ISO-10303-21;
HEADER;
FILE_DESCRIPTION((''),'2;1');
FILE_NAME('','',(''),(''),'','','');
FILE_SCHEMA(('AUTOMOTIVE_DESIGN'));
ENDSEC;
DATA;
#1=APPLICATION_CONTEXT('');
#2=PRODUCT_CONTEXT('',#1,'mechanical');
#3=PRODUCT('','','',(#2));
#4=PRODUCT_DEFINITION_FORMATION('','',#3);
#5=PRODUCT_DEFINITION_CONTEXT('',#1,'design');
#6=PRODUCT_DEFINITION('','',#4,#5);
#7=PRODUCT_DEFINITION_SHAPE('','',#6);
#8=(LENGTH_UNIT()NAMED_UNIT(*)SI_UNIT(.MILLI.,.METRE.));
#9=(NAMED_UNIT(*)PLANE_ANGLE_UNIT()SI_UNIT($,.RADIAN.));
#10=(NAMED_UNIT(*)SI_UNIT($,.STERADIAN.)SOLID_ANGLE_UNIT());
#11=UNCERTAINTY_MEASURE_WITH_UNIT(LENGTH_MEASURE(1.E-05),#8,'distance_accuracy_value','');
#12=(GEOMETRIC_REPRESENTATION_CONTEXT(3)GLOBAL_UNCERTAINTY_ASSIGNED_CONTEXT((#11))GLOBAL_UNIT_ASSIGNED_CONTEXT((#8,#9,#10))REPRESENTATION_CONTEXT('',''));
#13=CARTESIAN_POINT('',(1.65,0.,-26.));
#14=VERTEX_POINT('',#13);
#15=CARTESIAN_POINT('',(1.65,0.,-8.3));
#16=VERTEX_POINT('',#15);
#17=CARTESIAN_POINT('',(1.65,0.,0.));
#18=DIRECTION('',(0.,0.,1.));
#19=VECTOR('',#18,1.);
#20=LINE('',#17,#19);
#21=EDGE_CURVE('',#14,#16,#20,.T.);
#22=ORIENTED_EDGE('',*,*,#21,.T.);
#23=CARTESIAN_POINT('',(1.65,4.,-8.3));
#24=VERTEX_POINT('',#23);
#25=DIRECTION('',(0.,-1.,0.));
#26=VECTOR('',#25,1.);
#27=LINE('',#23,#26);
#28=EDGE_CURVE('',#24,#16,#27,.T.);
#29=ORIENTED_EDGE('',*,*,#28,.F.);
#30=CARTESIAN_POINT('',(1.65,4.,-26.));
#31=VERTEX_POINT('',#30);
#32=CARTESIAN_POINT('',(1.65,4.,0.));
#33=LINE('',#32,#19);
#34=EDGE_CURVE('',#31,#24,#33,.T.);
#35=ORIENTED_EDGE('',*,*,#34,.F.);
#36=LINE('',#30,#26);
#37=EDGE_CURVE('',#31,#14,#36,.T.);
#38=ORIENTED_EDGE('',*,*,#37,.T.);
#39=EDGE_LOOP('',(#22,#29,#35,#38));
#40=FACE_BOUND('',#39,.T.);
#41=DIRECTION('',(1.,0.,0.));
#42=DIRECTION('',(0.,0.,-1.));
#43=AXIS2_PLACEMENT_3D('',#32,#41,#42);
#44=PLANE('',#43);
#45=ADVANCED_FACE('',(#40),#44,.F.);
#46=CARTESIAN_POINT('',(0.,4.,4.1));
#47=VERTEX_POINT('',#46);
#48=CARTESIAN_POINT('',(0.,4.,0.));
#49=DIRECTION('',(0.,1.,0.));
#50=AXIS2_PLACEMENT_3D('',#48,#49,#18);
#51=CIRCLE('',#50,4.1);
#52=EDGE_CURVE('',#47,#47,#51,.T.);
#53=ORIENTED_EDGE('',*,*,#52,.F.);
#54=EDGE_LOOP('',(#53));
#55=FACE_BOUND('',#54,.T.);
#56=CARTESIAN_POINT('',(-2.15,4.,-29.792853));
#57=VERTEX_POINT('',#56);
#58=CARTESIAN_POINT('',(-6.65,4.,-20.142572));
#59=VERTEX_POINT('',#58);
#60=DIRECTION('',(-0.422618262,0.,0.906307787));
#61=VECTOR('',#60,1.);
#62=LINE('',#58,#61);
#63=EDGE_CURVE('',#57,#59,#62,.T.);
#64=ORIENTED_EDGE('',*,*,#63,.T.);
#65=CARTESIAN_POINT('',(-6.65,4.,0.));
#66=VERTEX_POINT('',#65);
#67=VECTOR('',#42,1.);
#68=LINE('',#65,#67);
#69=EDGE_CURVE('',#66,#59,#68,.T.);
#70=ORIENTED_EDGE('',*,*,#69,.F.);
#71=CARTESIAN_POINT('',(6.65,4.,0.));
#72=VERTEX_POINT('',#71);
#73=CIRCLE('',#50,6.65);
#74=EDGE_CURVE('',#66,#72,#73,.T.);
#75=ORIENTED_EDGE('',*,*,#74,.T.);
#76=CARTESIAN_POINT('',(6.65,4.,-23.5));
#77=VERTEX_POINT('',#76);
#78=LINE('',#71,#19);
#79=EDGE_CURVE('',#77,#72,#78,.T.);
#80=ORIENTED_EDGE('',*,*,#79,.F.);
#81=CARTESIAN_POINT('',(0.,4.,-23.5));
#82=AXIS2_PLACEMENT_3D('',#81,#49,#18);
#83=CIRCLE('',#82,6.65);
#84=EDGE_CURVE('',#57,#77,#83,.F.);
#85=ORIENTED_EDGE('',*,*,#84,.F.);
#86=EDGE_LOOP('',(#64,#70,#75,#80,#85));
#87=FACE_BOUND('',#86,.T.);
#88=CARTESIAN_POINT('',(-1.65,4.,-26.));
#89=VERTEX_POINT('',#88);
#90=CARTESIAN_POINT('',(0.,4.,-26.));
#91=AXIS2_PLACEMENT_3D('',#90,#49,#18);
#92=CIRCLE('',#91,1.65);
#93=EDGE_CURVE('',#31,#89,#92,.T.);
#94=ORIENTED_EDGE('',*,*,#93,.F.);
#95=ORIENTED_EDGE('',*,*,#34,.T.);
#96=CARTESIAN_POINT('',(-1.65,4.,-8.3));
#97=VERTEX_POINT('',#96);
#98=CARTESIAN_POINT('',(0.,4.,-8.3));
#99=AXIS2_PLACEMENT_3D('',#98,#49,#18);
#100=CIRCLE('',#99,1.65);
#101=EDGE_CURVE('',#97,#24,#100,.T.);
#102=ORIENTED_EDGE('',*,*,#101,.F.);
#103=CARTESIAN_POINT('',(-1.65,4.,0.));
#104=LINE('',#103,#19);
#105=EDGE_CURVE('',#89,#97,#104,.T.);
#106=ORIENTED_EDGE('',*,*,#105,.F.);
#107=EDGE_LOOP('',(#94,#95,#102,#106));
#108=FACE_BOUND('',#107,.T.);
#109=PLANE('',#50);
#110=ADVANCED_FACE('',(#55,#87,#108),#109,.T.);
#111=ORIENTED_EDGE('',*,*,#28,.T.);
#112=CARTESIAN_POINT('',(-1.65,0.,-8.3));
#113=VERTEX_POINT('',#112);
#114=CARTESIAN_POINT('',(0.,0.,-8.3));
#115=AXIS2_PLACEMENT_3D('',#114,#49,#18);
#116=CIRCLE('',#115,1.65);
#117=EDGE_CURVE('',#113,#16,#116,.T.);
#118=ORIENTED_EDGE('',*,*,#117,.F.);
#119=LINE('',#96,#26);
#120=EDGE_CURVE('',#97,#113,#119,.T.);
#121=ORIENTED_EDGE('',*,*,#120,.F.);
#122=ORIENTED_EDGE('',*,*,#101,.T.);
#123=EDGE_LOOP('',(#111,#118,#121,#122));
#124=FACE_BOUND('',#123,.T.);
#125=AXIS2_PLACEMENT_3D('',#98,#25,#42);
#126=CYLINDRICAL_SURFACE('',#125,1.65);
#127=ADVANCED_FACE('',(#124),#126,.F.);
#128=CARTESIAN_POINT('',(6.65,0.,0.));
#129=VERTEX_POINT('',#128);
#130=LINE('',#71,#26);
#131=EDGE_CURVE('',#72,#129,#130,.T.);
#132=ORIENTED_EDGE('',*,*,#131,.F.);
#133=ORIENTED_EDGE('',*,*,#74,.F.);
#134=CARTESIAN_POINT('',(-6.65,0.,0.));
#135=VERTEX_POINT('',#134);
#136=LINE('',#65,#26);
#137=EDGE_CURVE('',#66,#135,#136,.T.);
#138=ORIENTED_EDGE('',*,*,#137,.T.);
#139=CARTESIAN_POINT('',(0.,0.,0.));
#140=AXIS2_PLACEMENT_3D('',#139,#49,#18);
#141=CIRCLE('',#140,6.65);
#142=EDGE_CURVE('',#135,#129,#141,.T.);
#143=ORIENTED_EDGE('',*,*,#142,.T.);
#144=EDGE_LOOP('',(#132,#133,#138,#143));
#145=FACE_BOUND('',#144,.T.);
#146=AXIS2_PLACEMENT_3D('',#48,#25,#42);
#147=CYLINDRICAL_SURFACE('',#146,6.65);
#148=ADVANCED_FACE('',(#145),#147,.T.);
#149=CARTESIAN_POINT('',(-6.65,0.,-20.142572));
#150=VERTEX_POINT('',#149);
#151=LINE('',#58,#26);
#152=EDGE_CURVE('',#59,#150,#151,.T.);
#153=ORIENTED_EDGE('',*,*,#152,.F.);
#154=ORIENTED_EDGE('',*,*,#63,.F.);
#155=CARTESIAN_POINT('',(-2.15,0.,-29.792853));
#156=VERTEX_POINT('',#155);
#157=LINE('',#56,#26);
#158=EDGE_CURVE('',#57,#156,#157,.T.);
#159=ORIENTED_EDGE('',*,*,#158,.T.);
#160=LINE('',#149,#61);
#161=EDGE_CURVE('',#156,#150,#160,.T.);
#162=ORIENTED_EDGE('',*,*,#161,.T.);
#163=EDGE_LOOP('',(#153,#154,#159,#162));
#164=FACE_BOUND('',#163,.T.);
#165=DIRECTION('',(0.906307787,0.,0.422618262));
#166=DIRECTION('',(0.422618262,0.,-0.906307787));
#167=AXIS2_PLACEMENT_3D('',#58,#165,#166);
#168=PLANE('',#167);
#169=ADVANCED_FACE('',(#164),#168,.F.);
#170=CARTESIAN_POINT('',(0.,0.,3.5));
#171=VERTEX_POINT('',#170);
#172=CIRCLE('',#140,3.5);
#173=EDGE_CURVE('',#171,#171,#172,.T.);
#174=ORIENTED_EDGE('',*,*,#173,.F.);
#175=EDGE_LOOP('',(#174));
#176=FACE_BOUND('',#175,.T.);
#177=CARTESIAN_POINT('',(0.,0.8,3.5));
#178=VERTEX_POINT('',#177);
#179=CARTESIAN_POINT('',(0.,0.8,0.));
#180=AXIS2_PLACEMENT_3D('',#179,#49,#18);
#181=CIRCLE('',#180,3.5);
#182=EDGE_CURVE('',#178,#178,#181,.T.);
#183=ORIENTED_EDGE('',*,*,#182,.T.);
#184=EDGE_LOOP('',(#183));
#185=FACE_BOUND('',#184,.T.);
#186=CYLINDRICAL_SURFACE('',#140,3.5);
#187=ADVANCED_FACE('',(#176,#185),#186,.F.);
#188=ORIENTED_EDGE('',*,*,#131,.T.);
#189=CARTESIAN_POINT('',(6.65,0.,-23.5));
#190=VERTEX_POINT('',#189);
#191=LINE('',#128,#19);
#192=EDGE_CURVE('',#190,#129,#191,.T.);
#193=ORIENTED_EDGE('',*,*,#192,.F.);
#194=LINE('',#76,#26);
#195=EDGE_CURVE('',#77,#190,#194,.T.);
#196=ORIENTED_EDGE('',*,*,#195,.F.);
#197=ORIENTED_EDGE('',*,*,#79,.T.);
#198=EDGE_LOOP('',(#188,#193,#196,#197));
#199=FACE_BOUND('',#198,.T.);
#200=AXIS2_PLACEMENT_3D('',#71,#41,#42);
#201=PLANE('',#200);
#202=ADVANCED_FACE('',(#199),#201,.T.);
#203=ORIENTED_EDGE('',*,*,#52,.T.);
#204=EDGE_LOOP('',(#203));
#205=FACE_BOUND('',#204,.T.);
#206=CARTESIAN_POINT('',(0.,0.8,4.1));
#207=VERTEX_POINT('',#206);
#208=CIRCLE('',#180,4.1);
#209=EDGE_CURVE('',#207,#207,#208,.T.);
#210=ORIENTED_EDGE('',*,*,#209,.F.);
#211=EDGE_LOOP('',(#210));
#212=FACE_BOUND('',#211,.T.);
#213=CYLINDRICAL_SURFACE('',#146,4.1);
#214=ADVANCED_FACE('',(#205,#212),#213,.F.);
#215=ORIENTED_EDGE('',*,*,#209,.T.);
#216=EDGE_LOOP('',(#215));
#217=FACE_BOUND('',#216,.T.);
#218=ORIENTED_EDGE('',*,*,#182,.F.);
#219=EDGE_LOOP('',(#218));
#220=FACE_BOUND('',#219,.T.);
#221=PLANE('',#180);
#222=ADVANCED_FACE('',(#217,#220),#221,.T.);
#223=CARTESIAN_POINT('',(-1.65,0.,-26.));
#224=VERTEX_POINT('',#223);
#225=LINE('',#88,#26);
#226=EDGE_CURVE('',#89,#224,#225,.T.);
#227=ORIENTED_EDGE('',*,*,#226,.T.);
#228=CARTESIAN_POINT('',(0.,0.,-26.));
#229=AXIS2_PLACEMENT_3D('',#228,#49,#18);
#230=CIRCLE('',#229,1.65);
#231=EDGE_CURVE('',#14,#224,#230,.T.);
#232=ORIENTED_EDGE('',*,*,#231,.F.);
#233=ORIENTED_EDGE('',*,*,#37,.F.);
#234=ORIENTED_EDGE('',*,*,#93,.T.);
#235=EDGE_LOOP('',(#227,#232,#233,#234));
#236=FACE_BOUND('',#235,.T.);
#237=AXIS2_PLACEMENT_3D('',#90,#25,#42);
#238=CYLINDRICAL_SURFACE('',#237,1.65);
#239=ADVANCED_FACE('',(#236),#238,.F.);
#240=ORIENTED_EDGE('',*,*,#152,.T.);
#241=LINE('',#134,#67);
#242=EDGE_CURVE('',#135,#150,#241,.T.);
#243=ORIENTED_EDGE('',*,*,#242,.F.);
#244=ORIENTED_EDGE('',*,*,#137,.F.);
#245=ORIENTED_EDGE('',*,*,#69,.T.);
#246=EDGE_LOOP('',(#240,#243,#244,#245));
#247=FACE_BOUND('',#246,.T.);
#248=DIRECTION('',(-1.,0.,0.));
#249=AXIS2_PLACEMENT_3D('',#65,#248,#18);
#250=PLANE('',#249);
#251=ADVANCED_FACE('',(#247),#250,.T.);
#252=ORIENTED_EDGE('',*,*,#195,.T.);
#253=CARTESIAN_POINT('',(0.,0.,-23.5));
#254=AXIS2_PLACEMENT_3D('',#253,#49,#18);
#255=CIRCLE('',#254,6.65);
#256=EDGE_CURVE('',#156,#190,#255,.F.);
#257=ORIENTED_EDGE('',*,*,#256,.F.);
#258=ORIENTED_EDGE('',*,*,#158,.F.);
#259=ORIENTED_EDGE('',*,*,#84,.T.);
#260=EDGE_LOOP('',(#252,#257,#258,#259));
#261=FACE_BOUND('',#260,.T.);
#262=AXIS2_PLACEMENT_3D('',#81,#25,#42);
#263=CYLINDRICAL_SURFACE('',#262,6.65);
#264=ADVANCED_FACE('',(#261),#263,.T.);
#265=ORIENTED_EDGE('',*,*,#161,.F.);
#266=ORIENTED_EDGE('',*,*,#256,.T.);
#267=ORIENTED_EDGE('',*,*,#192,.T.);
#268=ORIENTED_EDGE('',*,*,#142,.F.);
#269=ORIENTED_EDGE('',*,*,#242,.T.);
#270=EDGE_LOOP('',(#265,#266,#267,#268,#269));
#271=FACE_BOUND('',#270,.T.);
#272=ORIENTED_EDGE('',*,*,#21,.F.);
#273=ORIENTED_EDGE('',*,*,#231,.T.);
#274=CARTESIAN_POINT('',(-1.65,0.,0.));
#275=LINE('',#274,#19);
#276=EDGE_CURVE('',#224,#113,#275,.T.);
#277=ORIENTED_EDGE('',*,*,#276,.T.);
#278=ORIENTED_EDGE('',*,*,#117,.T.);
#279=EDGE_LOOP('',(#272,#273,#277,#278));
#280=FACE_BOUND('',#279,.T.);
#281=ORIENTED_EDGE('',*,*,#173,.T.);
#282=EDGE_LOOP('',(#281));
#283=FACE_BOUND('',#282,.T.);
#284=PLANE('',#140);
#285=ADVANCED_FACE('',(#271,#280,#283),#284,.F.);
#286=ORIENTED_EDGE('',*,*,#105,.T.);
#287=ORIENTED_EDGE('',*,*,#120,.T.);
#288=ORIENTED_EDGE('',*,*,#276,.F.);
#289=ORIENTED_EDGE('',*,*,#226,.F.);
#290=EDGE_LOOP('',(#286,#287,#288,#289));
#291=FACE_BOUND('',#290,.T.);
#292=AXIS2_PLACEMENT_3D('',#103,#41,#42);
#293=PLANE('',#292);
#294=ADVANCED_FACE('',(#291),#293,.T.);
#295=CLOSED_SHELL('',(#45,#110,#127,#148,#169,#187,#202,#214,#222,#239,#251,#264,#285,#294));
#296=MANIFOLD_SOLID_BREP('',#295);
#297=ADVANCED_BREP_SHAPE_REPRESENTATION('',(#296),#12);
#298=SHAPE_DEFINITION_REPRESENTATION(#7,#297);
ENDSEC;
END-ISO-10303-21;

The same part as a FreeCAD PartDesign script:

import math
import FreeCAD as App
import Part
import Sketcher
from FreeCAD import Vector
Q = App.Units.Quantity

doc = App.newDocument("Part")
params = doc.addObject("Spreadsheet::Sheet", "Params")
for row, (alias, value) in enumerate([
    ("sketch1_diameter", "8.2 mm"),
    ("sketch1_radius", "6.65 mm"),
    ("sketch1_radius2", "1.65 mm"),
    ("sketch1_height", "23.5 mm"),
    ("sketch1_height2", "17.7 mm"),
    ("pad1_length", "4 mm"),
    ("sketch2_diameter", "8.2 mm"),
    ("pad2_length", "0.8 mm"),
    ("sketch3_diameter", "7 mm"),
    ("sketch4_radius", "6.65 mm"),
], start=1):
    params.set(f"A{row}", alias)
    params.set(f"B{row}", "=" + value)
    params.setAlias(f"B{row}", alias)

body = doc.addObject("PartDesign::Body", "Body")

# Sketch on XZ plane
sketch1 = doc.addObject("Sketcher::SketchObject", "Sketch")
body.addObject(sketch1)
sketch1.AttachmentSupport = (doc.XZ_Plane, [""])
sketch1.MapMode = "FlatFace"
sketch1.addGeometry([
    Part.LineSegment(Vector(6.7, 0, 0), Vector(6.7, -23.5, 0)),  # 0
    Part.ArcOfCircle(Part.Circle(Vector(0, -23.5, 0), Vector(0, 0, 1), 6.7), math.radians(180), math.radians(360)),  # 1
    Part.LineSegment(Vector(-6.7, -23.5, 0), Vector(-6.7, 0, 0)),  # 2
    Part.ArcOfCircle(Part.Circle(Vector(0, 0, 0), Vector(0, 0, 1), 6.7), math.radians(0), math.radians(180)),  # 3
    Part.Circle(Vector(0, 0, 0), Vector(0, 0, 1), 4.1),  # 4
    Part.ArcOfCircle(Part.Circle(Vector(0, -8.3, 0), Vector(0, 0, 1), 1.6), math.radians(0), math.radians(90)),  # 5
    Part.ArcOfCircle(Part.Circle(Vector(0, -8.3, 0), Vector(0, 0, 1), 1.6), math.radians(90), math.radians(180)),  # 6
    Part.LineSegment(Vector(-1.6, -8.3, 0), Vector(-1.6, -26, 0)),  # 7
    Part.ArcOfCircle(Part.Circle(Vector(0, -26, 0), Vector(0, 0, 1), 1.6), math.radians(180), math.radians(360)),  # 8
    Part.LineSegment(Vector(1.6, -26, 0), Vector(1.6, -8.3, 0)),  # 9
], False)
sketch1.addConstraint([
    Sketcher.Constraint("Tangent", 0, 2, 1, 2),
    Sketcher.Constraint("Tangent", 1, 1, 2, 1),
    Sketcher.Constraint("Tangent", 2, 2, 3, 2),
    Sketcher.Constraint("Tangent", 3, 1, 0, 1),
    Sketcher.Constraint("Tangent", 5, 2, 6, 1),
    Sketcher.Constraint("Tangent", 6, 2, 7, 1),
    Sketcher.Constraint("Tangent", 7, 2, 8, 1),
    Sketcher.Constraint("Tangent", 8, 2, 9, 1),
    Sketcher.Constraint("Tangent", 9, 2, 5, 1),
    Sketcher.Constraint("Vertical", 0),
    Sketcher.Constraint("Vertical", 2),
    Sketcher.Constraint("Vertical", 7),
    Sketcher.Constraint("Vertical", 9),
    Sketcher.Constraint("Coincident", 3, 3, -1, 1),
    Sketcher.Constraint("Coincident", 4, 3, -1, 1),
    Sketcher.Constraint("Equal", 5, 6),
    Sketcher.Constraint("PointOnObject", 5, 3, -2),
    Sketcher.Constraint("PointOnObject", 5, 2, -2),
    Sketcher.Constraint("Diameter", 4, 8.2),
    Sketcher.Constraint("Radius", 1, 6.65),
    Sketcher.Constraint("Radius", 5, 1.65),
    Sketcher.Constraint("DistanceY", 0, 2, 0, 1, 23.5),
    Sketcher.Constraint("DistanceY", 7, 2, 7, 1, 17.7),
    Sketcher.Constraint("DistanceY", 8, 3, -1, 1, 26.0),
])
sketch1.setExpression("Constraints[18]", "Params.sketch1_diameter")
sketch1.setExpression("Constraints[19]", "Params.sketch1_radius")
sketch1.setExpression("Constraints[20]", "Params.sketch1_radius2")
sketch1.setExpression("Constraints[21]", "Params.sketch1_height")
sketch1.setExpression("Constraints[22]", "Params.sketch1_height2")
pad1 = doc.addObject("PartDesign::Pad", "Pad")
body.addObject(pad1)
pad1.Profile = sketch1
pad1.setExpression("Length", "Params.pad1_length")
pad1.Reversed = True

# Sketch on XZ plane
sketch2 = doc.addObject("Sketcher::SketchObject", "Sketch001")
body.addObject(sketch2)
sketch2.AttachmentSupport = (doc.XZ_Plane, [""])
sketch2.MapMode = "FlatFace"
sketch2.addGeometry(Part.Circle(Vector(0, 0, 0), Vector(0, 0, 1), 4.1), False)
sketch2.addConstraint([
    Sketcher.Constraint("Coincident", 0, 3, -1, 1),
    Sketcher.Constraint("Diameter", 0, 8.2),
])
sketch2.setExpression("Constraints[1]", "Params.sketch2_diameter")
pad2 = doc.addObject("PartDesign::Pad", "Pad001")
body.addObject(pad2)
pad2.Profile = sketch2
pad2.setExpression("Length", "Params.pad2_length")
pad2.Reversed = True

# Sketch on XZ plane
sketch3 = doc.addObject("Sketcher::SketchObject", "Sketch002")
body.addObject(sketch3)
sketch3.AttachmentSupport = (doc.XZ_Plane, [""])
sketch3.MapMode = "FlatFace"
sketch3.AttachmentOffset = App.Placement(Vector(0, 0, -0.8), App.Rotation())
sketch3.addGeometry(Part.Circle(Vector(0, 0, 0), Vector(0, 0, 1), 3.5), False)
sketch3.addConstraint([
    Sketcher.Constraint("Coincident", 0, 3, -1, 1),
    Sketcher.Constraint("Diameter", 0, 7.0),
])
sketch3.setExpression("Constraints[1]", "Params.sketch3_diameter")
pocket1 = doc.addObject("PartDesign::Pocket", "Pocket")
body.addObject(pocket1)
pocket1.Profile = sketch3
pocket1.Type = "ThroughAll"
pocket1.Reversed = True

# Sketch on XZ plane
sketch4 = doc.addObject("Sketcher::SketchObject", "Sketch003")
body.addObject(sketch4)
sketch4.AttachmentSupport = (doc.XZ_Plane, [""])
sketch4.MapMode = "FlatFace"
sketch4.addGeometry([
    Part.LineSegment(Vector(-2.1, -29.8, 0), Vector(-6.7, -20.1, 0)),
    Part.LineSegment(Vector(-6.7, -20.1, 0), Vector(-6.7, -23.5, 0)),
    Part.ArcOfCircle(Part.Circle(Vector(0, -23.5, 0), Vector(0, 0, 1), 6.6), math.radians(180), math.radians(251)),
], False)
sketch4.addConstraint([
    Sketcher.Constraint("Coincident", 0, 2, 1, 1),
    Sketcher.Constraint("Tangent", 1, 2, 2, 1),
    Sketcher.Constraint("Coincident", 2, 2, 0, 1),
    Sketcher.Constraint("Vertical", 1),
    Sketcher.Constraint("PointOnObject", 2, 3, -2),
    Sketcher.Constraint("Angle", 0, Q("115 deg")),
    Sketcher.Constraint("Radius", 2, 6.65),
    Sketcher.Constraint("DistanceY", 2, 3, -1, 1, 23.5),
    Sketcher.Constraint("DistanceX", 1, 2, 2, 2, 4.5),
])
sketch4.setExpression("Constraints[6]", "Params.sketch4_radius")
pocket2 = doc.addObject("PartDesign::Pocket", "Pocket001")
body.addObject(pocket2)
pocket2.Profile = sketch4
pocket2.Type = "ThroughAll"

doc.recompute()
